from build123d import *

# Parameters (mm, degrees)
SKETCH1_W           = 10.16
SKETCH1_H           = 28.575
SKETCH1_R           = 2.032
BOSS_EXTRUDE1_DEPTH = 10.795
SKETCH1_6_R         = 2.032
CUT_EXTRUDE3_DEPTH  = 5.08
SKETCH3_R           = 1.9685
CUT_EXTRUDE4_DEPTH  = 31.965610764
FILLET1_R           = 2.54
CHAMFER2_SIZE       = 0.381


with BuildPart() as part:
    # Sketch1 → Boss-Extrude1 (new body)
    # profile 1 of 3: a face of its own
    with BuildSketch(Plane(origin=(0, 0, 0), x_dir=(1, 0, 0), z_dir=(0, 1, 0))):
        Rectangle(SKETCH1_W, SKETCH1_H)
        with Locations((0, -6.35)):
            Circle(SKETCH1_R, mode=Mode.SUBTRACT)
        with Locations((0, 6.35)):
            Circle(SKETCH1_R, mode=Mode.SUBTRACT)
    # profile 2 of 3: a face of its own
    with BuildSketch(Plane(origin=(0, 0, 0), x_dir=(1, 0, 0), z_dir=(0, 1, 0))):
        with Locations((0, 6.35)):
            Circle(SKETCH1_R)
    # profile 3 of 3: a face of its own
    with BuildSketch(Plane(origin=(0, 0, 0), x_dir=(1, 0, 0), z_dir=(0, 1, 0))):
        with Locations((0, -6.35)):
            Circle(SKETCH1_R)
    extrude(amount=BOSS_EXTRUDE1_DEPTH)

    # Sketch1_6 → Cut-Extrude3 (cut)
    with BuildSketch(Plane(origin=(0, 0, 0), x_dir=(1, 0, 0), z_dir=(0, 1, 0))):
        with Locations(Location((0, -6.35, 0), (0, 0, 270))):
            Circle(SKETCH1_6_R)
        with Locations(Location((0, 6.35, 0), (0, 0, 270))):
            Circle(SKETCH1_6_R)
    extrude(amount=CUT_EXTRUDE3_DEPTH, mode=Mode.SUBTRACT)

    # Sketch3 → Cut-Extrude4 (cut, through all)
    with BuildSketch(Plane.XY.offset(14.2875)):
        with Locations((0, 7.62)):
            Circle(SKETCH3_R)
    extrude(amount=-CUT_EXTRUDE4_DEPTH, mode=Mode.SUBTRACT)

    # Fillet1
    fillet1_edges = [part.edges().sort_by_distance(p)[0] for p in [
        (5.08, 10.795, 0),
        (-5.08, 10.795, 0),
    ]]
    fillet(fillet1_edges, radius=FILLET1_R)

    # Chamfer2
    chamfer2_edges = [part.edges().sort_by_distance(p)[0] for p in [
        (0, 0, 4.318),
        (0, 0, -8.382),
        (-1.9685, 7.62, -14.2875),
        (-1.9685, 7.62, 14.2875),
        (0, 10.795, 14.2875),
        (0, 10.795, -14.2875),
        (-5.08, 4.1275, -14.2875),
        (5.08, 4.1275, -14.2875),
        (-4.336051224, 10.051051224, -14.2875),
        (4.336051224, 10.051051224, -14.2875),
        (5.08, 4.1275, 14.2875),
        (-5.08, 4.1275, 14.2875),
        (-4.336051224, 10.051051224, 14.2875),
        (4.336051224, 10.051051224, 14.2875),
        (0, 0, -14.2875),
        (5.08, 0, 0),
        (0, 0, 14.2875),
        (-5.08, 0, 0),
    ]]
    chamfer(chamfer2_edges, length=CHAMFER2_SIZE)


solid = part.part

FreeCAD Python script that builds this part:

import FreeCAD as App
import Part
import Sketcher
from FreeCAD import Vector
Q = App.Units.Quantity


def edges_at(feature, points):
    """Names of the edges that pass closest to the given points."""
    edges = feature.Shape.Edges
    near = lambda p: min(range(len(edges)), key=lambda i: edges[i].distToShape(Part.Vertex(*p))[0])
    return sorted({f"Edge{near(p) + 1}" for p in points})


def add_polygon(sketch, points):
    """Adds a closed chain of lines whose ends are joined by coincident constraints."""
    first, n = sketch.GeometryCount, len(points)
    for a, b in zip(points, points[1:] + points[:1]):
        sketch.addGeometry(Part.LineSegment(App.Vector(*a, 0), App.Vector(*b, 0)), False)
    for i in range(n):
        sketch.addConstraint(Sketcher.Constraint("Coincident", first + i, 2, first + (i + 1) % n, 1))

doc = App.newDocument("Part")
params = doc.addObject("Spreadsheet::Sheet", "Params")
for row, (alias, value) in enumerate([
    ("sketch1_width", "0.4 in"),
    ("sketch1_height", "1.125 in"),
    ("pad1_length", "0.425 in"),
    ("sketch2_diameter", "0.16 in"),
    ("pocket1_length", "0.2 in"),
    ("sketch3_diameter", "0.155 in"),
    ("fillet_radius", "0.1 in"),
    ("chamfer_size", "0.015 in"),
], start=1):
    params.set(f"A{row}", alias)
    params.set(f"B{row}", "=" + value)
    params.setAlias(f"B{row}", alias)

body = doc.addObject("PartDesign::Body", "Body")

sketch1 = body.newObject("Sketcher::SketchObject", "Sketch")
sketch1.AttachmentSupport = (doc.getObject("XZ_Plane"), [""])
sketch1.MapMode = "FlatFace"
add_polygon(sketch1, [(-5.08, -14.2875), (-5.08, 14.2875), (5.08, 14.2875), (5.08, -14.2875)])
sketch1.addConstraint([
    Sketcher.Constraint("Vertical", 0),
    Sketcher.Constraint("Horizontal", 1),
    Sketcher.Constraint("Vertical", 2),
    Sketcher.Constraint("Horizontal", 3),
    Sketcher.Constraint("Symmetric", 0, 2, 2, 2, -1, 1),
    Sketcher.Constraint("DistanceX", 1, 1, 1, 2, Q("0.4 in")),
    Sketcher.Constraint("DistanceY", 0, 1, 0, 2, Q("1.125 in")),
])
sketch1.setExpression("Constraints[9]", "Params.sketch1_width")
sketch1.setExpression("Constraints[10]", "Params.sketch1_height")
pad1 = body.newObject("PartDesign::Pad", "Pad")
pad1.Profile = sketch1
pad1.setExpression("Length", "Params.pad1_length")
pad1.Reversed = True

sketch2 = body.newObject("Sketcher::SketchObject", "Sketch001")
sketch2.AttachmentSupport = (doc.getObject("XZ_Plane"), [""])
sketch2.MapMode = "FlatFace"
sketch2.addGeometry([
    Part.Circle(Vector(0, 6.35, 0), Vector(0, 0, 1), 2.032),
    Part.Circle(Vector(0, -6.35, 0), Vector(0, 0, 1), 2.032),
], False)
sketch2.addConstraint([
    Sketcher.Constraint("Equal", 0, 1),
    Sketcher.Constraint("Symmetric", 0, 3, 1, 3, -1, 1),
    Sketcher.Constraint("PointOnObject", 0, 3, -2),
    Sketcher.Constraint("Diameter", 0, Q("0.16 in")),
    Sketcher.Constraint("DistanceY", 1, 3, 0, 3, Q("0.5 in")),
])
sketch2.setExpression("Constraints[3]", "Params.sketch2_diameter")
pocket1 = body.newObject("PartDesign::Pocket", "Pocket")
pocket1.Profile = sketch2
pocket1.setExpression("Length", "Params.pocket1_length")

sketch3 = body.newObject("Sketcher::SketchObject", "Sketch002")
sketch3.AttachmentSupport = (doc.getObject("XY_Plane"), [""])
sketch3.MapMode = "FlatFace"
sketch3.AttachmentOffset = App.Placement(Vector(0, 0, 0.5625 * 25.4), App.Rotation())
sketch3.addGeometry(Part.Circle(Vector(0, 7.62, 0), Vector(0, 0, 1), 1.9685), False)
sketch3.addConstraint([
    Sketcher.Constraint("PointOnObject", 0, 3, -2),
    Sketcher.Constraint("Diameter", 0, Q("0.155 in")),
    Sketcher.Constraint("DistanceY", -1, 1, 0, 3, Q("0.3 in")),
])
sketch3.setExpression("Constraints[1]", "Params.sketch3_diameter")
pocket2 = body.newObject("PartDesign::Pocket", "Pocket001")
pocket2.Profile = sketch3
pocket2.Type = "ThroughAll"
doc.recompute()

fillet = body.newObject("PartDesign::Fillet", "Fillet")
fillet.Base = (pocket2, edges_at(pocket2, [(5.08, 10.795, 0), (-5.08, 10.795, 0)]))
fillet.setExpression("Radius", "Params.fillet_radius")
doc.recompute()

chamfer = body.newObject("PartDesign::Chamfer", "Chamfer")
chamfer.Base = (fillet, edges_at(fillet, [
    (0, 0, 4.318),
    (0, 0, -8.382),
    (-1.968, 7.62, -14.287),
    (-1.968, 7.62, 14.287),
    (0, 10.795, 14.287),
    (0, 10.795, -14.287),
    (-5.08, 4.128, -14.287),
    (5.08, 4.128, -14.287),
    (-4.336, 10.051, -14.287),
    (4.336, 10.051, -14.287),
    (5.08, 4.128, 14.287),
    (-5.08, 4.128, 14.287),
    (-4.336, 10.051, 14.287),
    (4.336, 10.051, 14.287),
    (0, 0, -14.287),
    (5.08, 0, 0),
    (0, 0, 14.287),
    (-5.08, 0, 0),
]))
chamfer.setExpression("Size", "Params.chamfer_size")

doc.recompute()
